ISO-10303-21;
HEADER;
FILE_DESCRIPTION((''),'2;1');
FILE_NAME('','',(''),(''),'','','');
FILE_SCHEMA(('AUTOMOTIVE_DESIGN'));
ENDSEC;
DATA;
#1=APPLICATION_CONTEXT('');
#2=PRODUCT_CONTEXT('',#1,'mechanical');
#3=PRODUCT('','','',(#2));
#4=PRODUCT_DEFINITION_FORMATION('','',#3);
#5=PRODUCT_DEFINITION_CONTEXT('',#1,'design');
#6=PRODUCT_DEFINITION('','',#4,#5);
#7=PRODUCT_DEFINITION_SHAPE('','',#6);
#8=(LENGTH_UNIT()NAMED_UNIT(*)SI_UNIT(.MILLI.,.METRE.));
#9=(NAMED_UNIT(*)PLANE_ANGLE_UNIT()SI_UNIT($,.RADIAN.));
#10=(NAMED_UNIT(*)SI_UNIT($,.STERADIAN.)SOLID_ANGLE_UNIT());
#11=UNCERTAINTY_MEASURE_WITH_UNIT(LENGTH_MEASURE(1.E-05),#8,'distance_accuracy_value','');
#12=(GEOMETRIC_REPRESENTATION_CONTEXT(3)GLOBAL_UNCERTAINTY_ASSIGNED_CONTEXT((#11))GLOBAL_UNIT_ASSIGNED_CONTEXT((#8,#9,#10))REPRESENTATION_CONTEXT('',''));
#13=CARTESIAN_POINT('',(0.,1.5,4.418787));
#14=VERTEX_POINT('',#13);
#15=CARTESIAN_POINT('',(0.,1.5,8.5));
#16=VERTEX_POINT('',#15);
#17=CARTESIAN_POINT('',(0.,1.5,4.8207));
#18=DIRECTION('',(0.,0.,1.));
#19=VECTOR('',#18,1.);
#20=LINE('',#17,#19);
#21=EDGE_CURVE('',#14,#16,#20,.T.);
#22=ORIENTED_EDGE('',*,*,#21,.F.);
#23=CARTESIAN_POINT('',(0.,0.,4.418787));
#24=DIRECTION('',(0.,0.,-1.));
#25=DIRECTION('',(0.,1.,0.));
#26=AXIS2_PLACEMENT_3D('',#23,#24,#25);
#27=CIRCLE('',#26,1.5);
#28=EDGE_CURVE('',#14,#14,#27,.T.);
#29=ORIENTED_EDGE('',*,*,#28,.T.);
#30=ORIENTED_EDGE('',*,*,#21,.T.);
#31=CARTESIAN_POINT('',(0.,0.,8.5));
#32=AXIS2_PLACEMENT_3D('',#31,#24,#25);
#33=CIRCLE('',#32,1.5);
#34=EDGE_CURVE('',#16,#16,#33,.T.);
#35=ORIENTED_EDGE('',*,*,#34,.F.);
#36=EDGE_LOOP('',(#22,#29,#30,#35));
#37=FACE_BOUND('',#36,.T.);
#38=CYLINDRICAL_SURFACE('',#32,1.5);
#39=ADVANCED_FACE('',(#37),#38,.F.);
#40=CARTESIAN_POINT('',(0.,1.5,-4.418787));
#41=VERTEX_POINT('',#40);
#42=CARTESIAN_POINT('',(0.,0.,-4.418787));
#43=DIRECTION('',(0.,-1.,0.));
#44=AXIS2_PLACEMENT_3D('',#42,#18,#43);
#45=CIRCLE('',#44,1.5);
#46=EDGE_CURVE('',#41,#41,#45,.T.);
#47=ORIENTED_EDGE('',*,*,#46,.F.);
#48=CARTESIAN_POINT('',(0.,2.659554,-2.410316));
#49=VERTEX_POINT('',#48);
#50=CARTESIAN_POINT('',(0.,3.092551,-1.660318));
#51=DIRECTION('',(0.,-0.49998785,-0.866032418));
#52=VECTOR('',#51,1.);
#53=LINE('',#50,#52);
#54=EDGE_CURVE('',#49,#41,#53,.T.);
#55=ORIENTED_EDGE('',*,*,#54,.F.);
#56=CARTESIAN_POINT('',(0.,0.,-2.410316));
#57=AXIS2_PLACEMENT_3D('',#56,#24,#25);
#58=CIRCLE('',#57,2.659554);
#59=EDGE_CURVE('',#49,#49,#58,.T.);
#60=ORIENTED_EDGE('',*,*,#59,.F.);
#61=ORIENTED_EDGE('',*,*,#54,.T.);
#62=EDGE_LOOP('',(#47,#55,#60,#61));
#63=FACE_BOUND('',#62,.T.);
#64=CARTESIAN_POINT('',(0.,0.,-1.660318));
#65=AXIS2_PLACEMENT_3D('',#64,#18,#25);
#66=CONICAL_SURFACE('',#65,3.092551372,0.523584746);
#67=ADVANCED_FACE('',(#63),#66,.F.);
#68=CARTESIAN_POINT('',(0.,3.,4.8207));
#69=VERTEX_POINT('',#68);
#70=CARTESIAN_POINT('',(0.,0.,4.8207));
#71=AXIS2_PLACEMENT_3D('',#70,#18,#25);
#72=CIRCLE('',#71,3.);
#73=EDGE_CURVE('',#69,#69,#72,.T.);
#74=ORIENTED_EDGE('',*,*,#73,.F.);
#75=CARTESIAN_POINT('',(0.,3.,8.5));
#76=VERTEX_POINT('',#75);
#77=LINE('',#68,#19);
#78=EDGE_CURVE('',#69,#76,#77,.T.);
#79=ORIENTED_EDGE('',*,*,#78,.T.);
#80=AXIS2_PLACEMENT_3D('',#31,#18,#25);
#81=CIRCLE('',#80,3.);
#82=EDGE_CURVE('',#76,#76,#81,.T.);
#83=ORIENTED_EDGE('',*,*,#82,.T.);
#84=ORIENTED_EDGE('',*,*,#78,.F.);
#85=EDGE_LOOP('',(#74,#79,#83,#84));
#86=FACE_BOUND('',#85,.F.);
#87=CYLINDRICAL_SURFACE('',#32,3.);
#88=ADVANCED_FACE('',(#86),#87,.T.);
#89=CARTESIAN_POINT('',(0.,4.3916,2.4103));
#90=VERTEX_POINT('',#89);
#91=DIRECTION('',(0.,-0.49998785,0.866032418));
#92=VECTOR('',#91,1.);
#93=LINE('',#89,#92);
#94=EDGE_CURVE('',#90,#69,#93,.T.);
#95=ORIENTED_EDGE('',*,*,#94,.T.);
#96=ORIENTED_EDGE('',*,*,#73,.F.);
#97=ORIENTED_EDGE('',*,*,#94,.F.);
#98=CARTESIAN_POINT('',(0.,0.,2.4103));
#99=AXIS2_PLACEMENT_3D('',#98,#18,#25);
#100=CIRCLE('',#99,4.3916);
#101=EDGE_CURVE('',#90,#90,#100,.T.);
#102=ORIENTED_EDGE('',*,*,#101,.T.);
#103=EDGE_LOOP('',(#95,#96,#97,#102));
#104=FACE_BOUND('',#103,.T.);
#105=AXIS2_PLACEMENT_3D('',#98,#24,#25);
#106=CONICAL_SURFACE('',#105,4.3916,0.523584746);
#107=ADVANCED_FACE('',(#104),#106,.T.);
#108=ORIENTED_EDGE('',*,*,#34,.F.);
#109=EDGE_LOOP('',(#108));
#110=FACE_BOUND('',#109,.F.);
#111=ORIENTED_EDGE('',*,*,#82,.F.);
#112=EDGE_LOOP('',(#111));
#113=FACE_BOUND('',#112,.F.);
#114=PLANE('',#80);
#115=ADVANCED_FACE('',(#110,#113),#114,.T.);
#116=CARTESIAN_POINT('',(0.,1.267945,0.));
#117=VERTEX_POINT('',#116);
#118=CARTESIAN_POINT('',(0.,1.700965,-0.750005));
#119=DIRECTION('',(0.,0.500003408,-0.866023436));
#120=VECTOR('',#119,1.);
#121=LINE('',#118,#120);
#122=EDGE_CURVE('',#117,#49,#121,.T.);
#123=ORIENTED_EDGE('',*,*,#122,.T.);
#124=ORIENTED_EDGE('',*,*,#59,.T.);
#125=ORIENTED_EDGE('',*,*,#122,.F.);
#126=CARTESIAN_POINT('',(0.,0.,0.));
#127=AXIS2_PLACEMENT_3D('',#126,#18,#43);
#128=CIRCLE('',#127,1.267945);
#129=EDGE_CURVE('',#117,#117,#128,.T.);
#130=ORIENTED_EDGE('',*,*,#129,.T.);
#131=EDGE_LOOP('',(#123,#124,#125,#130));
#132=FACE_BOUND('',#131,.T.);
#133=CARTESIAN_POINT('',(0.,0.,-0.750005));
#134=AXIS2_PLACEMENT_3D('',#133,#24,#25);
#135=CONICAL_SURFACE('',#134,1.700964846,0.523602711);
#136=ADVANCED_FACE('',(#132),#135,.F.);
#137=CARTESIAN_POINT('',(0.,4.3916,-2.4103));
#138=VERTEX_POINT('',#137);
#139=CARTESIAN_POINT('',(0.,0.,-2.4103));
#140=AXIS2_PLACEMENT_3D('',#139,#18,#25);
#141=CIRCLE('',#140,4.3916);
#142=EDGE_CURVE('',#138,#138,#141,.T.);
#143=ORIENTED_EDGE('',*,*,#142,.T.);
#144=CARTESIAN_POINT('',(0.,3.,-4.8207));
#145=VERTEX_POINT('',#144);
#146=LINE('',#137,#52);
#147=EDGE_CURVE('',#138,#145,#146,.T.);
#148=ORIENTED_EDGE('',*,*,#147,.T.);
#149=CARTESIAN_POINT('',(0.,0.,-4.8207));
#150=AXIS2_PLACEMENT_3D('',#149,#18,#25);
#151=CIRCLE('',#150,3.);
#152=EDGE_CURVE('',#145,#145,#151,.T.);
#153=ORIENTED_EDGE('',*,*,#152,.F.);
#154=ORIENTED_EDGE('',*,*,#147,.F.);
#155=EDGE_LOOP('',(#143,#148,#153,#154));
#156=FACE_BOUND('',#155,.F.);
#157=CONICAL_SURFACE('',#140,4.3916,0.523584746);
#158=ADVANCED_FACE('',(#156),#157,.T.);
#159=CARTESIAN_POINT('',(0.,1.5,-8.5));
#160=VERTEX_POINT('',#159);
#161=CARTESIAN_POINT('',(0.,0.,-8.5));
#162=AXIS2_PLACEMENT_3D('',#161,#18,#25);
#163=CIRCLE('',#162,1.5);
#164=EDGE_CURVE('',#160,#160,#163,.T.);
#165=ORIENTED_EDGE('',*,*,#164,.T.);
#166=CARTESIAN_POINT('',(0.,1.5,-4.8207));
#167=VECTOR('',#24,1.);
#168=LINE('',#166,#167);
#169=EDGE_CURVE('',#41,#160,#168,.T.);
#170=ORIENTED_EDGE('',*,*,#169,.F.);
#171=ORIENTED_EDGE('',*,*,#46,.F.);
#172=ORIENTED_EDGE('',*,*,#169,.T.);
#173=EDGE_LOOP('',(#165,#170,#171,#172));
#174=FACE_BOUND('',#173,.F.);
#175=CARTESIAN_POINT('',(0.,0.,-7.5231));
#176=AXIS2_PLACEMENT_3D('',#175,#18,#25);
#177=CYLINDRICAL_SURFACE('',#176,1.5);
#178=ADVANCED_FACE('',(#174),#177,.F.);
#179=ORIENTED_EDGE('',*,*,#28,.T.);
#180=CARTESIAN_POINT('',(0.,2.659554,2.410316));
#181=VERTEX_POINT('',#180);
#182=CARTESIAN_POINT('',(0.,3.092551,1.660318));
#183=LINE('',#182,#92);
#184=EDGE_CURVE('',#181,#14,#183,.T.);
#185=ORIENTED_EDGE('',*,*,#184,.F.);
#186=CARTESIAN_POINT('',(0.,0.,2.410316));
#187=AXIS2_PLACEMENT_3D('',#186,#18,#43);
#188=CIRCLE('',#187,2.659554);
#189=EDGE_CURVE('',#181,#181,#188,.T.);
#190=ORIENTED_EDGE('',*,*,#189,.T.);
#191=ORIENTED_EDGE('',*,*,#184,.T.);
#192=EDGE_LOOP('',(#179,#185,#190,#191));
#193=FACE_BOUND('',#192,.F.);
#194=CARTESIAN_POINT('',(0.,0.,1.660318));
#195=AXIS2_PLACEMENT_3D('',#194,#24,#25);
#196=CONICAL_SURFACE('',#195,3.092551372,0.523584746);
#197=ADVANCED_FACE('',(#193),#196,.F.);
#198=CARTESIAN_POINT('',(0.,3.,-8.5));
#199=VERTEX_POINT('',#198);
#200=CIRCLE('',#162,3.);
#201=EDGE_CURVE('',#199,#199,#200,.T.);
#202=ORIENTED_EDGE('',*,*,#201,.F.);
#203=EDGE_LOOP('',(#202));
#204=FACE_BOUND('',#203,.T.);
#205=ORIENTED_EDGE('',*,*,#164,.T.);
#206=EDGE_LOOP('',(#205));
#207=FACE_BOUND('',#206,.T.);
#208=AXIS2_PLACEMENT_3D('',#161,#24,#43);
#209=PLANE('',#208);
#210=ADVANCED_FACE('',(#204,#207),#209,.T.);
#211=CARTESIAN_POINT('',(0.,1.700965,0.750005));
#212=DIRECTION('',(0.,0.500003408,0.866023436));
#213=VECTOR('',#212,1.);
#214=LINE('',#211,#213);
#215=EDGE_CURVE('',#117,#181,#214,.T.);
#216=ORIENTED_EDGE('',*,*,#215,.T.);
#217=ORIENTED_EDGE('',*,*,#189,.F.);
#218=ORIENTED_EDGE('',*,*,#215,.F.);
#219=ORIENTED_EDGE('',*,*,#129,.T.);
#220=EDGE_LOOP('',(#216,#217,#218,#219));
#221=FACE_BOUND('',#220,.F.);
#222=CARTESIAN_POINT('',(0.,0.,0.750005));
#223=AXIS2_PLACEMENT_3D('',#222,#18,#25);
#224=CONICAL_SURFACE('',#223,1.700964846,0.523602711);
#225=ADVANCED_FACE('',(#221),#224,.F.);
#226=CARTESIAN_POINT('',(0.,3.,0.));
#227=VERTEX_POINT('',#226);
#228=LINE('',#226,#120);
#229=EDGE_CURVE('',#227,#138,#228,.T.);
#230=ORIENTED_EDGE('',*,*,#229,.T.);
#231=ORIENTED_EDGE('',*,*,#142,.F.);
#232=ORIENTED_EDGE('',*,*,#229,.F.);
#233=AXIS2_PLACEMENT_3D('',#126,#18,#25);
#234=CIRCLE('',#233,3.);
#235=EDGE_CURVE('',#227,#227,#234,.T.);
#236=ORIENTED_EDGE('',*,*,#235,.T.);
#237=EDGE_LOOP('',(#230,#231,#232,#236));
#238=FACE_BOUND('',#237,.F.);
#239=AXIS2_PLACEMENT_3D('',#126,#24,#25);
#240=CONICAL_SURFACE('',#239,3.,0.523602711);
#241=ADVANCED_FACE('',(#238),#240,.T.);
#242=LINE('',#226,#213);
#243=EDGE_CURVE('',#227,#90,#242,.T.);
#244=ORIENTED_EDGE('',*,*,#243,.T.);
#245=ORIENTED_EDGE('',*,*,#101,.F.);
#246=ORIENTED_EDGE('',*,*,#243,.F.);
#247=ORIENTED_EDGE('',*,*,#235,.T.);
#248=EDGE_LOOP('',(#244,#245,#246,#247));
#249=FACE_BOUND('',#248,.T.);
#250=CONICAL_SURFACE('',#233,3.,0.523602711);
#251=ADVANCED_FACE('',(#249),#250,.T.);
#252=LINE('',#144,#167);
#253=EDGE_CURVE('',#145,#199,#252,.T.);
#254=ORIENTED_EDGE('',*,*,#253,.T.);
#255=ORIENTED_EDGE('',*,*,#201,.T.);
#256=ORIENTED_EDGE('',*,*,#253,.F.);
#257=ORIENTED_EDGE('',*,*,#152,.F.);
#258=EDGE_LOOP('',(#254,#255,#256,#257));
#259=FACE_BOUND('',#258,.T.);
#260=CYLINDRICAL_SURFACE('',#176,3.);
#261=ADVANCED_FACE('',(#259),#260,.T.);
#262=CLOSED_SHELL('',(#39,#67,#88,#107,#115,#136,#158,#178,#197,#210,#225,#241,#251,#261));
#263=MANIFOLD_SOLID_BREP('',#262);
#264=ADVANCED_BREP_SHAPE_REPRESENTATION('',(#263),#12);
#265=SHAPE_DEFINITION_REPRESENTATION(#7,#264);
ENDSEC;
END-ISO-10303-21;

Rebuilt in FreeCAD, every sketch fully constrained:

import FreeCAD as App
import Part
import Sketcher

V = App.Vector
Q = App.Units.Quantity


def faces_at(feature, points):
    """Names of the faces that lie closest to the given points."""
    faces = feature.Shape.Faces
    near = lambda p: min(range(len(faces)), key=lambda i: faces[i].distToShape(Part.Vertex(*p))[0])
    return sorted({f"Face{near(p) + 1}" for p in points})

doc = App.newDocument("Part")
body = doc.addObject("PartDesign::Body", "Body")

sketch1 = body.newObject("Sketcher::SketchObject", "Sketch")
sketch1.AttachmentSupport = (doc.getObject("YZ_Plane"), [""])
sketch1.MapMode = "FlatFace"
sketch1.addGeometry([
    Part.LineSegment(V(0, 8.5, 0), V(0, 0, 0)),
    Part.LineSegment(V(0, 0, 0), V(3, 0, 0)),
    Part.LineSegment(V(3, 0, 0), V(4.4, 2.4, 0)),
    Part.LineSegment(V(4.4, 2.4, 0), V(3, 4.8, 0)),
    Part.LineSegment(V(3, 4.8, 0), V(3, 8.5, 0)),
    Part.LineSegment(V(3, 8.5, 0), V(0, 8.5, 0)),
], False)
sketch1.addConstraint([
    Sketcher.Constraint("Coincident", 0, 2, 1, 1),
    Sketcher.Constraint("Coincident", 1, 2, 2, 1),
    Sketcher.Constraint("Coincident", 2, 2, 3, 1),
    Sketcher.Constraint("Coincident", 3, 2, 4, 1),
    Sketcher.Constraint("Coincident", 4, 2, 5, 1),
    Sketcher.Constraint("Coincident", 5, 2, 0, 1),
    Sketcher.Constraint("Vertical", 0),
    Sketcher.Constraint("Horizontal", 1),
    Sketcher.Constraint("Vertical", 4),
    Sketcher.Constraint("Horizontal", 5),
    Sketcher.Constraint("Coincident", 0, 2, -1, 1),
    Sketcher.Constraint("Vertical", 1, 2, 3, 2),
    Sketcher.Constraint("Equal", 2, 3),
    Sketcher.Constraint("DistanceX", 1, 1, 1, 2, 3.0),
    Sketcher.Constraint("Angle", 2, Q("59.9998 deg")),
    Sketcher.Constraint("DistanceY", 0, 2, 0, 1, 8.5),
    Sketcher.Constraint("DistanceY", 4, 1, 4, 2, 3.6793),
])
revolution = body.newObject("PartDesign::Revolution", "Revolution")
revolution.Profile = sketch1
revolution.ReferenceAxis = (sketch1, ["V_Axis"])
revolution.Angle = 360
doc.recompute()

mirrored = body.newObject("PartDesign::Mirrored", "Mirrored")
mirrored.TransformMode = "Transform body"
mirrored.MirrorPlane = (doc.getObject("XY_Plane"), [""])
body.Tip = mirrored
doc.recompute()

thickness = body.newObject("PartDesign::Thickness", "Thickness")
thickness.Base = (mirrored, faces_at(mirrored, [(-1.095, -0.535, 8.5), (-1.095, -0.535, -8.5)]))
thickness.Value = 1.5
thickness.Reversed = True
thickness.Join = "Intersection"

doc.recompute()
